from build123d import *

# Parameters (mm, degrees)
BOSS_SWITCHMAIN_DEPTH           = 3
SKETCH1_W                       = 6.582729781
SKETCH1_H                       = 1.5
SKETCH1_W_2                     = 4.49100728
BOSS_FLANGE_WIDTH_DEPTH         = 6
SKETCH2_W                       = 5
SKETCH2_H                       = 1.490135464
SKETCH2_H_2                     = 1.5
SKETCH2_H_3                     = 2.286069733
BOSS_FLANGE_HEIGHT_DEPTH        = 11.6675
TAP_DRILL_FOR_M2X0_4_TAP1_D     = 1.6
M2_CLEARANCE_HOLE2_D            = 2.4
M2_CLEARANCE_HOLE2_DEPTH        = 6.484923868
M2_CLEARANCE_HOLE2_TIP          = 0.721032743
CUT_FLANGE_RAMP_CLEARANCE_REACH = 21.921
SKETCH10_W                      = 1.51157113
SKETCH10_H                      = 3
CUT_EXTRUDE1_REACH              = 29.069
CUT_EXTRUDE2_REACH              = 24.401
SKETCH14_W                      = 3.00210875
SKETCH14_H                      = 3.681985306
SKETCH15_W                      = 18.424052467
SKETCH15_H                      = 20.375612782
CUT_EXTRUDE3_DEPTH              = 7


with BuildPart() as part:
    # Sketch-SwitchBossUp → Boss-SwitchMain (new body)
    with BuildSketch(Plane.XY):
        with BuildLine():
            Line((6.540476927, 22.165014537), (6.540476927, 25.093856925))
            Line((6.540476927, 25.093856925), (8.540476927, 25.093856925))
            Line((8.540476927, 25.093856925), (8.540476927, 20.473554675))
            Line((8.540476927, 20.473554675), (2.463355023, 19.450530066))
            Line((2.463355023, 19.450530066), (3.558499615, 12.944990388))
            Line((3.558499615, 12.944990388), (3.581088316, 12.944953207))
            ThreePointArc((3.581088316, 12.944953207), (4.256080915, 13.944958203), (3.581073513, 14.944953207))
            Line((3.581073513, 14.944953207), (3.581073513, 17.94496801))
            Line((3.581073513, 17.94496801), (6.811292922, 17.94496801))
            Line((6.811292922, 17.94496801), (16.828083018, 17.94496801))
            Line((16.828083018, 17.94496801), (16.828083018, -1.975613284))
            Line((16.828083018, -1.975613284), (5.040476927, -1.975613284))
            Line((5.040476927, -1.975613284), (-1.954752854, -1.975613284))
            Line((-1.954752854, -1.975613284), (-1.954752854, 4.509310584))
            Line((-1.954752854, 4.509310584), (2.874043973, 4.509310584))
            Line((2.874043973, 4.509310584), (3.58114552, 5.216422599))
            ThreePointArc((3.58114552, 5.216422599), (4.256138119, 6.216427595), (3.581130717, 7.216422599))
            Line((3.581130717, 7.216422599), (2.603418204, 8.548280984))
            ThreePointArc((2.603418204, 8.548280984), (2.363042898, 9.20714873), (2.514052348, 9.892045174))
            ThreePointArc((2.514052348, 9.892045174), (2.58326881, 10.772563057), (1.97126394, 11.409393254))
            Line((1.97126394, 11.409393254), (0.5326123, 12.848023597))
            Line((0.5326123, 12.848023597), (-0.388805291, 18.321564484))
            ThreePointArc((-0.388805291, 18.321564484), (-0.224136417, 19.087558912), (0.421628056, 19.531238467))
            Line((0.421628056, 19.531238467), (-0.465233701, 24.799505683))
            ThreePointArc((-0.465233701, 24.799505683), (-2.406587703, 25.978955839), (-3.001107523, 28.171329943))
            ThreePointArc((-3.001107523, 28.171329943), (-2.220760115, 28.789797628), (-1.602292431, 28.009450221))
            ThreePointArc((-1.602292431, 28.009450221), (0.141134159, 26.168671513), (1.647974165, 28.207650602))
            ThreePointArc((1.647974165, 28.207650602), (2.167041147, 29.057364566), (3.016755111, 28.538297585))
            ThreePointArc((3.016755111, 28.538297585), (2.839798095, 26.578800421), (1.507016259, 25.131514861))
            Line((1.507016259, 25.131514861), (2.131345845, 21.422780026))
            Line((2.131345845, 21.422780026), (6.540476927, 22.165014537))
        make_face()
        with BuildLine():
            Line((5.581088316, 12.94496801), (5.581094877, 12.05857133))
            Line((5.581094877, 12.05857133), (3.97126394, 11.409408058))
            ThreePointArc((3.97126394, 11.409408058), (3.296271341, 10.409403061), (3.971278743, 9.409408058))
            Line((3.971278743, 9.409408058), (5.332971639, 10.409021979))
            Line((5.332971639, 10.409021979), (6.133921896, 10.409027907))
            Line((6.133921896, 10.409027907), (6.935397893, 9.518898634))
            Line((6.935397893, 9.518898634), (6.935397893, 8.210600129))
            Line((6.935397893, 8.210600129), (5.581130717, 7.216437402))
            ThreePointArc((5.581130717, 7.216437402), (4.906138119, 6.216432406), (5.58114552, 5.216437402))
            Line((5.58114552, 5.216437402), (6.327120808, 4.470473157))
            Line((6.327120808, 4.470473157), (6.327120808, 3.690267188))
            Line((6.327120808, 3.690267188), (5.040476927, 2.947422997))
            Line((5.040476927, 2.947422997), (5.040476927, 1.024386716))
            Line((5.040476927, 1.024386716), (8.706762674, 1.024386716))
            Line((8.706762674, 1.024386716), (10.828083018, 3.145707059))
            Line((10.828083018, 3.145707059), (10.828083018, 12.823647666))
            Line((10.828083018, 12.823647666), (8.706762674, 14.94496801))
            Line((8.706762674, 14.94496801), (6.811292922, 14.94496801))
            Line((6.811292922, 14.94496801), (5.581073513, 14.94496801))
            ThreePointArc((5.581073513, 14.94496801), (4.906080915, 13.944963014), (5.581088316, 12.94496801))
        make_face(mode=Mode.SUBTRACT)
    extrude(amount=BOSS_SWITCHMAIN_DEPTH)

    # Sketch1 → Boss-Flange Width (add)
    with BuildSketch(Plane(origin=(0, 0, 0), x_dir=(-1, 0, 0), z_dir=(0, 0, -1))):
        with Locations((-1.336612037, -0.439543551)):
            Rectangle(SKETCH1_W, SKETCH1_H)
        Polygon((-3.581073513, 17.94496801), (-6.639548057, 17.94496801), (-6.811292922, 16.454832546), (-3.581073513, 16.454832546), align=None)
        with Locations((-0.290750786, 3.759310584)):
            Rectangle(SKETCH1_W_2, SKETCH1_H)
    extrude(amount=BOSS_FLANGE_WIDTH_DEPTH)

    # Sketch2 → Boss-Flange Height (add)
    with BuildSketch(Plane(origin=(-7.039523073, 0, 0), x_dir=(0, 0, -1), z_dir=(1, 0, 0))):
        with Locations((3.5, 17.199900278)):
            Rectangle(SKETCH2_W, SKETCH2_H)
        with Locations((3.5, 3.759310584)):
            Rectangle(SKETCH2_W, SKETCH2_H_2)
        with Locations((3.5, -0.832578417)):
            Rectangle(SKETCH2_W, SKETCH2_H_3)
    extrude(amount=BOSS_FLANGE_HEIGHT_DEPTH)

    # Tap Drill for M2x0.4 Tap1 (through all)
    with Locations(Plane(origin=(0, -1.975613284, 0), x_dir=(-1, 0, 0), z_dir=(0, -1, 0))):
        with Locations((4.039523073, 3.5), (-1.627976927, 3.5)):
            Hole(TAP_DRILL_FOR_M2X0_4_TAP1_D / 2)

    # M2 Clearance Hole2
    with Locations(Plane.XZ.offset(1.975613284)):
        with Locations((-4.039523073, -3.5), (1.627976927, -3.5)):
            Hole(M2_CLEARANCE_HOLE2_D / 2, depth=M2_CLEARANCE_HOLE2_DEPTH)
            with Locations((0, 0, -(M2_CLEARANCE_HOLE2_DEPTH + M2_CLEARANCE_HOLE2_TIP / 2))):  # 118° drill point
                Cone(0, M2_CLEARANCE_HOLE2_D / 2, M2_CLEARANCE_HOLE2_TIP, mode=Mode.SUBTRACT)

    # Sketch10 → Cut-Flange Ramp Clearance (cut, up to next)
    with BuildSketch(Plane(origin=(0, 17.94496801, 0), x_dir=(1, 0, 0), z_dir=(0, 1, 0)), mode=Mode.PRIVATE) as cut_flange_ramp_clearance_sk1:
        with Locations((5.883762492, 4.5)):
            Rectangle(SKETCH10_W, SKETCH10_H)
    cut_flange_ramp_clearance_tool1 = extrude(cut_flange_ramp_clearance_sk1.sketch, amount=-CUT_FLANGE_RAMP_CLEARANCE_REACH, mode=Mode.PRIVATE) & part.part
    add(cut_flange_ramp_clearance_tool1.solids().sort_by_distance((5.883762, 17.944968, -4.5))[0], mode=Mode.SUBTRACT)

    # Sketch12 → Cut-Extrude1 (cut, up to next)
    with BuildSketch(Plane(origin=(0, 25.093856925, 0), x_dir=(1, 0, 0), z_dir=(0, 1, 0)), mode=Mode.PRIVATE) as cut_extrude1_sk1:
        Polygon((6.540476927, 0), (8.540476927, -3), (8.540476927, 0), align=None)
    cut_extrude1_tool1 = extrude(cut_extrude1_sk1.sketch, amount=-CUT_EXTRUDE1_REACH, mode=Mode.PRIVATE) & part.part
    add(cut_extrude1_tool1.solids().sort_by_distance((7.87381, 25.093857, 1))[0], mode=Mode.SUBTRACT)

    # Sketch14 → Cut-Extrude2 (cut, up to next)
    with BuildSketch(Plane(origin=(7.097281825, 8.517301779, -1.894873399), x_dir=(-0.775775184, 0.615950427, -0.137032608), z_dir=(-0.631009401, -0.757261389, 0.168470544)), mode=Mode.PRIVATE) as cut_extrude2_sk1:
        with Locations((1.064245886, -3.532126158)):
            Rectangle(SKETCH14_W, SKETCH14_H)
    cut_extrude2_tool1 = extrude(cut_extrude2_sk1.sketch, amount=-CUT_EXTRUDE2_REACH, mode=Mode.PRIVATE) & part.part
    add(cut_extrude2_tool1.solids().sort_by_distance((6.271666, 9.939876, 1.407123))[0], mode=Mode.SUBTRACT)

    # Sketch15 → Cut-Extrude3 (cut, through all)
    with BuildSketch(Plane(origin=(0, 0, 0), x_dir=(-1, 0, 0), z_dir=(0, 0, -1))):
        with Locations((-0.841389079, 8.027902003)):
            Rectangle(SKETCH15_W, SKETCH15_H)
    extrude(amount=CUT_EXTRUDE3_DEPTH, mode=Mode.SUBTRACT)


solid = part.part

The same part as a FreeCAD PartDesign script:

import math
import FreeCAD as App
import Part
import Sketcher
from FreeCAD import Vector
Q = App.Units.Quantity


def add_polygon(sketch, points):
    """Adds a closed chain of lines whose ends are joined by coincident constraints."""
    first, n = sketch.GeometryCount, len(points)
    for a, b in zip(points, points[1:] + points[:1]):
        sketch.addGeometry(Part.LineSegment(App.Vector(*a, 0), App.Vector(*b, 0)), False)
    for i in range(n):
        sketch.addConstraint(Sketcher.Constraint("Coincident", first + i, 2, first + (i + 1) % n, 1))

doc = App.newDocument("Part")
body = doc.addObject("PartDesign::Body", "Body")

sketch1 = doc.addObject("Sketcher::SketchObject", "Sketch")
body.addObject(sketch1)
sketch1.AttachmentSupport = (doc.XY_Plane, [""])
sketch1.MapMode = "FlatFace"
sketch1.addGeometry(Part.LineSegment(Vector(6.540477, 25.093857, 0), Vector(6.540477, 22.165015, 0)), False)
sketch1.addGeometry(Part.LineSegment(Vector(6.540477, 22.165015, 0), Vector(2.131346, 21.42278, 0)), False)
sketch1.addGeometry(Part.LineSegment(Vector(2.131346, 21.42278, 0), Vector(1.507016, 25.131515, 0)), False)
sketch1.addGeometry(Part.ArcOfCircle(Part.Circle(Vector(0.040477, 27.819339, 0), Vector(0, 0, 1), 3.061884), math.radians(-61.382088), math.radians(13.580385)), False)
sketch1.addGeometry(Part.ArcOfCircle(Part.Circle(Vector(2.332365, 28.372974, 0), Vector(0, 0, 1), 0.704075), math.radians(13.580385), math.radians(193.580385)), False)
sketch1.addGeometry(Part.ArcOfCircle(Part.Circle(Vector(0.040477, 27.819339, 0), Vector(0, 0, 1), 1.653733), math.radians(173.398735), math.radians(373.580385)), False)
sketch1.addGeometry(Part.ArcOfCircle(Part.Circle(Vector(-2.3017, 28.09039, 0), Vector(0, 0, 1), 0.704075), math.radians(-6.601265), math.radians(173.398735)), False)
sketch1.addGeometry(Part.ArcOfCircle(Part.Circle(Vector(0.040477, 27.819339, 0), Vector(0, 0, 1), 3.061884), math.radians(173.398735), math.radians(260.493284)), False)
sketch1.addGeometry(Part.LineSegment(Vector(-0.465234, 24.799506, 0), Vector(0.421628, 19.531238, 0)), False)
sketch1.addGeometry(Part.ArcOfCircle(Part.Circle(Vector(0.656543, 18.497539, 0), Vector(0, 0, 1), 1.060057), math.radians(102.803384), math.radians(189.555598)), False)
sketch1.addGeometry(Part.LineSegment(Vector(-0.388805, 18.321564, 0), Vector(0.532612, 12.848024, 0)), False)
sketch1.addGeometry(Part.LineSegment(Vector(0.532612, 12.848024, 0), Vector(1.971264, 11.409393, 0)), False)
sketch1.addGeometry(Part.ArcOfCircle(Part.Circle(Vector(1.568031, 10.40939, 0), Vector(0, 0, 1), 1.078241), math.radians(-28.672655), math.radians(68.039124)), False)
sketch1.addGeometry(Part.ArcOfCircle(Part.Circle(Vector(3.614295, 9.290362, 0), Vector(0, 0, 1), 1.254016), math.radians(151.327345), math.radians(216.28226)), False)
sketch1.addGeometry(Part.LineSegment(Vector(2.603418, 8.548281, 0), Vector(3.581131, 7.216423, 0)), False)
sketch1.addGeometry(Part.ArcOfCircle(Part.Circle(Vector(3.177897, 6.21642, 0), Vector(0, 0, 1), 1.078241), math.radians(-68.038276), math.radians(68.039124)), False)
sketch1.addGeometry(Part.LineSegment(Vector(3.581146, 5.216423, 0), Vector(2.874044, 4.509311, 0)), False)
sketch1.addGeometry(Part.LineSegment(Vector(2.874044, 4.509311, 0), Vector(-1.954753, 4.509311, 0)), False)
sketch1.addGeometry(Part.LineSegment(Vector(-1.954753, 4.509311, 0), Vector(-1.954753, -1.975613, 0)), False)
sketch1.addGeometry(Part.LineSegment(Vector(-1.954753, -1.975613, 0), Vector(16.828083, -1.975613, 0)), False)
sketch1.addGeometry(Part.LineSegment(Vector(16.828083, -1.975613, 0), Vector(16.828083, 17.944968, 0)), False)
sketch1.addGeometry(Part.LineSegment(Vector(16.828083, 17.944968, 0), Vector(3.581074, 17.944968, 0)), False)
sketch1.addGeometry(Part.LineSegment(Vector(3.581074, 17.944968, 0), Vector(3.581074, 14.944953, 0)), False)
sketch1.addGeometry(Part.ArcOfCircle(Part.Circle(Vector(3.17784, 13.94495, 0), Vector(0, 0, 1), 1.078241), math.radians(-68.038276), math.radians(68.039124)), False)
sketch1.addGeometry(Part.LineSegment(Vector(3.581088, 12.944953, 0), Vector(3.5585, 12.94499, 0)), False)
sketch1.addGeometry(Part.LineSegment(Vector(3.5585, 12.94499, 0), Vector(2.463355, 19.45053, 0)), False)
sketch1.addGeometry(Part.LineSegment(Vector(2.463355, 19.45053, 0), Vector(8.540477, 20.473555, 0)), False)
sketch1.addGeometry(Part.LineSegment(Vector(8.540477, 20.473555, 0), Vector(8.540477, 25.093857, 0)), False)
sketch1.addGeometry(Part.LineSegment(Vector(8.540477, 25.093857, 0), Vector(6.540477, 25.093857, 0)), False)
sketch1.addGeometry(Part.ArcOfCircle(Part.Circle(Vector(5.984322, 13.944971, 0), Vector(0, 0, 1), 1.078241), math.radians(111.961724), math.radians(248.039124)), False)
sketch1.addGeometry(Part.LineSegment(Vector(5.581074, 14.944968, 0), Vector(8.706763, 14.944968, 0)), False)
sketch1.addGeometry(Part.LineSegment(Vector(8.706763, 14.944968, 0), Vector(10.828083, 12.823648, 0)), False)
sketch1.addGeometry(Part.LineSegment(Vector(10.828083, 12.823648, 0), Vector(10.828083, 3.145707, 0)), False)
sketch1.addGeometry(Part.LineSegment(Vector(10.828083, 3.145707, 0), Vector(8.706763, 1.024387, 0)), False)
sketch1.addGeometry(Part.LineSegment(Vector(8.706763, 1.024387, 0), Vector(5.040477, 1.024387, 0)), False)
sketch1.addGeometry(Part.LineSegment(Vector(5.040477, 1.024387, 0), Vector(5.040477, 2.947423, 0)), False)
sketch1.addGeometry(Part.LineSegment(Vector(5.040477, 2.947423, 0), Vector(6.327121, 3.690267, 0)), False)
sketch1.addGeometry(Part.LineSegment(Vector(6.327121, 3.690267, 0), Vector(6.327121, 4.470473, 0)), False)
sketch1.addGeometry(Part.LineSegment(Vector(6.327121, 4.470473, 0), Vector(5.581146, 5.216437, 0)), False)
sketch1.addGeometry(Part.ArcOfCircle(Part.Circle(Vector(5.984379, 6.21644, 0), Vector(0, 0, 1), 1.078241), math.radians(111.961724), math.radians(248.039124)), False)
sketch1.addGeometry(Part.LineSegment(Vector(5.581131, 7.216437, 0), Vector(6.935398, 8.2106, 0)), False)
sketch1.addGeometry(Part.LineSegment(Vector(6.935398, 8.2106, 0), Vector(6.935398, 9.518899, 0)), False)
sketch1.addGeometry(Part.LineSegment(Vector(6.935398, 9.518899, 0), Vector(6.133922, 10.409028, 0)), False)
sketch1.addGeometry(Part.LineSegment(Vector(6.133922, 10.409028, 0), Vector(5.332972, 10.409022, 0)), False)
sketch1.addGeometry(Part.LineSegment(Vector(5.332972, 10.409022, 0), Vector(3.971279, 9.409408, 0)), False)
sketch1.addGeometry(Part.ArcOfCircle(Part.Circle(Vector(4.374512, 10.409411, 0), Vector(0, 0, 1), 1.078241), math.radians(111.961724), math.radians(248.039124)), False)
sketch1.addGeometry(Part.LineSegment(Vector(3.971264, 11.409408, 0), Vector(5.581095, 12.058571, 0)), False)
sketch1.addGeometry(Part.LineSegment(Vector(5.581095, 12.058571, 0), Vector(5.581088, 12.944968, 0)), False)
sketch1.addConstraint(Sketcher.Constraint("Coincident", 0, 2, 1, 1))
sketch1.addConstraint(Sketcher.Constraint("Coincident", 1, 2, 2, 1))
sketch1.addConstraint(Sketcher.Constraint("Coincident", 2, 2, 3, 1))
sketch1.addConstraint(Sketcher.Constraint("Tangent", 3, 2, 4, 1))
sketch1.addConstraint(Sketcher.Constraint("Tangent", 4, 2, 5, 2))
sketch1.addConstraint(Sketcher.Constraint("Tangent", 5, 1, 6, 1))
sketch1.addConstraint(Sketcher.Constraint("Tangent", 6, 2, 7, 1))
sketch1.addConstraint(Sketcher.Constraint("Coincident", 7, 2, 8, 1))
sketch1.addConstraint(Sketcher.Constraint("Coincident", 8, 2, 9, 1))
sketch1.addConstraint(Sketcher.Constraint("Tangent", 9, 2, 10, 1))
sketch1.addConstraint(Sketcher.Constraint("Coincident", 10, 2, 11, 1))
sketch1.addConstraint(Sketcher.Constraint("Coincident", 11, 2, 12, 2))
sketch1.addConstraint(Sketcher.Constraint("Tangent", 12, 1, 13, 1))
sketch1.addConstraint(Sketcher.Constraint("Tangent", 13, 2, 14, 1))
sketch1.addConstraint(Sketcher.Constraint("Coincident", 14, 2, 15, 2))
sketch1.addConstraint(Sketcher.Constraint("Coincident", 15, 1, 16, 1))
sketch1.addConstraint(Sketcher.Constraint("Coincident", 16, 2, 17, 1))
sketch1.addConstraint(Sketcher.Constraint("Coincident", 17, 2, 18, 1))
sketch1.addConstraint(Sketcher.Constraint("Coincident", 18, 2, 19, 1))
sketch1.addConstraint(Sketcher.Constraint("Coincident", 19, 2, 20, 1))
sketch1.addConstraint(Sketcher.Constraint("Coincident", 20, 2, 21, 1))
sketch1.addConstraint(Sketcher.Constraint("Coincident", 21, 2, 22, 1))
sketch1.addConstraint(Sketcher.Constraint("Coincident", 22, 2, 23, 2))
sketch1.addConstraint(Sketcher.Constraint("Coincident", 23, 1, 24, 1))
sketch1.addConstraint(Sketcher.Constraint("Coincident", 24, 2, 25, 1))
sketch1.addConstraint(Sketcher.Constraint("Coincident", 25, 2, 26, 1))
sketch1.addConstraint(Sketcher.Constraint("Coincident", 26, 2, 27, 1))
sketch1.addConstraint(Sketcher.Constraint("Coincident", 27, 2, 28, 1))
sketch1.addConstraint(Sketcher.Constraint("Coincident", 28, 2, 0, 1))
sketch1.addConstraint(Sketcher.Constraint("Coincident", 29, 1, 30, 1))
sketch1.addConstraint(Sketcher.Constraint("Coincident", 30, 2, 31, 1))
sketch1.addConstraint(Sketcher.Constraint("Coincident", 31, 2, 32, 1))
sketch1.addConstraint(Sketcher.Constraint("Coincident", 32, 2, 33, 1))
sketch1.addConstraint(Sketcher.Constraint("Coincident", 33, 2, 34, 1))
sketch1.addConstraint(Sketcher.Constraint("Coincident", 34, 2, 35, 1))
sketch1.addConstraint(Sketcher.Constraint("Coincident", 35, 2, 36, 1))
sketch1.addConstraint(Sketcher.Constraint("Coincident", 36, 2, 37, 1))
sketch1.addConstraint(Sketcher.Constraint("Coincident", 37, 2, 38, 1))
sketch1.addConstraint(Sketcher.Constraint("Coincident", 38, 2, 39, 2))
sketch1.addConstraint(Sketcher.Constraint("Coincident", 39, 1, 40, 1))
sketch1.addConstraint(Sketcher.Constraint("Coincident", 40, 2, 41, 1))
sketch1.addConstraint(Sketcher.Constraint("Coincident", 41, 2, 42, 1))
sketch1.addConstraint(Sketcher.Constraint("Coincident", 42, 2, 43, 1))
sketch1.addConstraint(Sketcher.Constraint("Coincident", 43, 2, 44, 1))
sketch1.addConstraint(Sketcher.Constraint("Coincident", 44, 2, 45, 2))
sketch1.addConstraint(Sketcher.Constraint("Tangent", 45, 1, 46, 1))
sketch1.addConstraint(Sketcher.Constraint("Coincident", 46, 2, 47, 1))
sketch1.addConstraint(Sketcher.Constraint("Coincident", 47, 2, 29, 2))
sketch1.addConstraint(Sketcher.Constraint("Vertical", 0))
sketch1.addConstraint(Sketcher.Constraint("Horizontal", 17))
sketch1.addConstraint(Sketcher.Constraint("Vertical", 18))
sketch1.addConstraint(Sketcher.Constraint("Horizontal", 19))
sketch1.addConstraint(Sketcher.Constraint("Vertical", 20))
sketch1.addConstraint(Sketcher.Constraint("Horizontal", 21))
sketch1.addConstraint(Sketcher.Constraint("Vertical", 22))
sketch1.addConstraint(Sketcher.Constraint("Vertical", 27))
sketch1.addConstraint(Sketcher.Constraint("Horizontal", 28))
sketch1.addConstraint(Sketcher.Constraint("Horizontal", 30))
sketch1.addConstraint(Sketcher.Constraint("Vertical", 32))
sketch1.addConstraint(Sketcher.Constraint("Horizontal", 34))
sketch1.addConstraint(Sketcher.Constraint("Vertical", 35))
sketch1.addConstraint(Sketcher.Constraint("Vertical", 37))
sketch1.addConstraint(Sketcher.Constraint("Vertical", 41))
sketch1.addConstraint(Sketcher.Constraint("Coincident", 5, 3, 3, 3))
sketch1.addConstraint(Sketcher.Constraint("Coincident", 7, 3, 3, 3))
sketch1.addConstraint(Sketcher.Constraint("Equal", 4, 6))
sketch1.addConstraint(Sketcher.Constraint("Equal", 12, 15))
sketch1.addConstraint(Sketcher.Constraint("Equal", 15, 23))
sketch1.addConstraint(Sketcher.Constraint("Equal", 23, 29))
sketch1.addConstraint(Sketcher.Constraint("Equal", 29, 39))
sketch1.addConstraint(Sketcher.Constraint("Equal", 39, 45))
sketch1.addConstraint(Sketcher.Constraint("Perpendicular", 1, 2))
sketch1.addConstraint(Sketcher.Constraint("Parallel", 2, 8))
sketch1.addConstraint(Sketcher.Constraint("Parallel", 8, 10))
sketch1.addConstraint(Sketcher.Constraint("Perpendicular", 11, 16))
sketch1.addConstraint(Sketcher.Constraint("Parallel", 10, 25))
sketch1.addConstraint(Sketcher.Constraint("Perpendicular", 25, 26))
sketch1.addConstraint(Sketcher.Constraint("Perpendicular", 31, 33))
sketch1.addConstraint(Sketcher.Constraint("Perpendicular", 16, 38))
sketch1.addConstraint(Sketcher.Constraint("Perpendicular", 14, 40))
sketch1.addConstraint(Sketcher.Constraint("Parallel", 40, 44))
sketch1.addConstraint(Sketcher.Constraint("Perpendicular", 43, 47))
sketch1.addConstraint(Sketcher.Constraint("Vertical", 30, 2, 33, 2))
sketch1.addConstraint(Sketcher.Constraint("Equal", 31, 33))
sketch1.addConstraint(Sketcher.Constraint("DistanceX", 28, 2, 28, 1, 2.0))
sketch1.addConstraint(Sketcher.Constraint("Angle", 36, Q("30 deg")))
sketch1.addConstraint(Sketcher.Constraint("Angle", 42, Q("132 deg")))
sketch1.addConstraint(Sketcher.Constraint("Distance", 16, 1.0))
sketch1.addConstraint(Sketcher.Constraint("Distance", 31, 3.0))
sketch1.addConstraint(Sketcher.Constraint("Distance", 40, 1.68))
sketch1.addConstraint(Sketcher.Constraint("Radius", 12, 1.078241))
sketch1.addConstraint(Sketcher.Constraint("DistanceY", 41, 1, 41, 2, 1.308299))
sketch1.addConstraint(Sketcher.Constraint("Radius", 3, 3.061884))
sketch1.addConstraint(Sketcher.Constraint("Radius", 4, 0.704075))
sketch1.addConstraint(Sketcher.Constraint("Radius", 9, 1.060057))
sketch1.addConstraint(Sketcher.Constraint("Radius", 13, 1.254016))
sketch1.addConstraint(Sketcher.Constraint("Distance", 14, 1.652201))
sketch1.addConstraint(Sketcher.Constraint("DistanceX", 21, 2, 21, 1, 13.24701))
sketch1.addConstraint(Sketcher.Constraint("DistanceX", 30, 1, 30, 2, 3.125689))
sketch1.addConstraint(Sketcher.Constraint("DistanceY", 20, 1, 20, 2, 19.920581))
sketch1.addConstraint(Sketcher.Constraint("DistanceY", 32, 2, 32, 1, 9.677941))
sketch1.addConstraint(Sketcher.Constraint("DistanceX", 6, 3, -1, 1, 2.3017))
sketch1.addConstraint(Sketcher.Constraint("DistanceX", -1, 1, 24, 2, 3.5585))
sketch1.addConstraint(Sketcher.Constraint("DistanceY", -1, 1, 40, 2, 8.2106))
sketch1.addConstraint(Sketcher.Constraint("Distance", 1, 4.471169))
sketch1.addConstraint(Sketcher.Constraint("Distance", 24, 0.022589))
sketch1.addConstraint(Sketcher.Constraint("Distance", 26, 6.162628))
sketch1.addConstraint(Sketcher.Constraint("Distance", 36, 1.485688))
sketch1.addConstraint(Sketcher.Constraint("Distance", 38, 1.054961))
sketch1.addConstraint(Sketcher.Constraint("Distance", 43, 0.80095))
sketch1.addConstraint(Sketcher.Constraint("Distance", 44, 1.689212))
sketch1.addConstraint(Sketcher.Constraint("Distance", 46, 1.73579))
sketch1.addConstraint(Sketcher.Constraint("DistanceX", 17, 2, 17, 1, 4.828797))
sketch1.addConstraint(Sketcher.Constraint("DistanceX", 19, 1, 19, 2, 18.782836))
sketch1.addConstraint(Sketcher.Constraint("DistanceX", 34, 2, 34, 1, 3.666286))
sketch1.addConstraint(Sketcher.Constraint("DistanceY", 0, 2, 0, 1, 2.928842))
sketch1.addConstraint(Sketcher.Constraint("DistanceY", 18, 2, 18, 1, 6.484924))
sketch1.addConstraint(Sketcher.Constraint("DistanceY", 22, 2, 22, 1, 3.000015))
sketch1.addConstraint(Sketcher.Constraint("DistanceY", 27, 1, 27, 2, 4.620302))
sketch1.addConstraint(Sketcher.Constraint("DistanceY", 35, 1, 35, 2, 1.923036))
sketch1.addConstraint(Sketcher.Constraint("DistanceY", 37, 1, 37, 2, 0.780206))
sketch1.addConstraint(Sketcher.Constraint("DistanceY", -1, 1, 3, 3, 27.819339))
sketch1.addConstraint(Sketcher.Constraint("DistanceY", -1, 1, 6, 3, 28.09039))
sketch1.addConstraint(Sketcher.Constraint("DistanceY", -1, 1, 9, 3, 18.497539))
sketch1.addConstraint(Sketcher.Constraint("DistanceX", -1, 1, 12, 3, 1.568031))
sketch1.addConstraint(Sketcher.Constraint("DistanceY", -1, 1, 12, 3, 10.40939))
sketch1.addConstraint(Sketcher.Constraint("DistanceY", -1, 1, 15, 3, 6.21642))
sketch1.addConstraint(Sketcher.Constraint("DistanceX", -1, 1, 23, 3, 3.17784))
sketch1.addConstraint(Sketcher.Constraint("DistanceY", -1, 1, 23, 3, 13.94495))
sketch1.addConstraint(Sketcher.Constraint("DistanceX", -1, 1, 29, 3, 5.984322))
sketch1.addConstraint(Sketcher.Constraint("DistanceY", -1, 1, 29, 3, 13.944971))
sketch1.addConstraint(Sketcher.Constraint("DistanceX", -1, 1, 39, 3, 5.984379))
sketch1.addConstraint(Sketcher.Constraint("DistanceY", -1, 1, 39, 3, 6.21644))
sketch1.addConstraint(Sketcher.Constraint("DistanceY", -1, 1, 45, 3, 10.409411))
sketch1.addConstraint(Sketcher.Constraint("DistanceY", -1, 1, 1, 2, 21.42278))
sketch1.addConstraint(Sketcher.Constraint("DistanceY", -1, 1, 4, 2, 28.207651))
sketch1.addConstraint(Sketcher.Constraint("DistanceX", -1, 1, 8, 2, 0.421628))
sketch1.addConstraint(Sketcher.Constraint("DistanceY", -1, 1, 8, 2, 19.531238))
sketch1.addConstraint(Sketcher.Constraint("DistanceX", -1, 1, 13, 2, 2.603418))
sketch1.addConstraint(Sketcher.Constraint("DistanceY", -1, 1, 13, 2, 8.548281))
sketch1.addConstraint(Sketcher.Constraint("DistanceY", -1, 1, 16, 2, 4.509311))
sketch1.addConstraint(Sketcher.Constraint("DistanceY", -1, 1, 24, 2, 12.94499))
sketch1.addConstraint(Sketcher.Constraint("DistanceY", -1, 1, 25, 2, 19.45053))
sketch1.addConstraint(Sketcher.Constraint("DistanceX", -1, 1, 42, 2, 6.133922))
sketch1.addConstraint(Sketcher.Constraint("DistanceY", -1, 1, 43, 2, 10.409022))
sketch1.addConstraint(Sketcher.Constraint("DistanceY", -1, 1, 45, 1, 11.409408))
sketch1.addConstraint(Sketcher.Constraint("Distance", 10, 5.550555))
pad1 = doc.addObject("PartDesign::Pad", "Pad")
body.addObject(pad1)
pad1.Profile = sketch1
pad1.Length = 3

sketch2 = doc.addObject("Sketcher::SketchObject", "Sketch001")
body.addObject(sketch2)
sketch2.AttachmentSupport = (doc.XY_Plane, [""])
sketch2.MapMode = "FlatFace"
add_polygon(sketch2, [(4.627977, 0.310456), (4.627977, -1.189544), (-1.954753, -1.189544), (-1.954753, 0.310456)])
add_polygon(sketch2, [(3.581074, 17.944968), (6.639548, 17.944968), (6.811293, 16.454833), (3.581074, 16.454833)])
add_polygon(sketch2, [(2.536254, 4.509311), (2.536254, 3.009311), (-1.954753, 3.009311), (-1.954753, 4.509311)])
sketch2.addConstraint(Sketcher.Constraint("Vertical", 0))
sketch2.addConstraint(Sketcher.Constraint("Horizontal", 1))
sketch2.addConstraint(Sketcher.Constraint("Vertical", 2))
sketch2.addConstraint(Sketcher.Constraint("Horizontal", 3))
sketch2.addConstraint(Sketcher.Constraint("Horizontal", 4))
sketch2.addConstraint(Sketcher.Constraint("Horizontal", 6))
sketch2.addConstraint(Sketcher.Constraint("Vertical", 7))
sketch2.addConstraint(Sketcher.Constraint("Vertical", 8))
sketch2.addConstraint(Sketcher.Constraint("Horizontal", 9))
sketch2.addConstraint(Sketcher.Constraint("Vertical", 10))
sketch2.addConstraint(Sketcher.Constraint("Horizontal", 11))
sketch2.addConstraint(Sketcher.Constraint("Vertical", 2, 2, 9, 2))
sketch2.addConstraint(Sketcher.Constraint("Equal", 2, 8))
sketch2.addConstraint(Sketcher.Constraint("DistanceY", 0, 2, 0, 1, 1.5))
sketch2.addConstraint(Sketcher.Constraint("Distance", 5, 1.5))
sketch2.addConstraint(Sketcher.Constraint("DistanceX", 1, 2, 1, 1, 6.58273))
sketch2.addConstraint(Sketcher.Constraint("DistanceX", 6, 2, 6, 1, 3.230219))
sketch2.addConstraint(Sketcher.Constraint("DistanceX", 2, 2, 4, 2, 8.594301))
sketch2.addConstraint(Sketcher.Constraint("DistanceX", 4, 1, 4, 2, 3.058475))
sketch2.addConstraint(Sketcher.Constraint("DistanceX", 9, 2, 9, 1, 4.491007))
sketch2.addConstraint(Sketcher.Constraint("DistanceX", -1, 1, 4, 2, 6.639548))
sketch2.addConstraint(Sketcher.Constraint("DistanceY", -1, 1, 4, 2, 17.944968))
sketch2.addConstraint(Sketcher.Constraint("DistanceY", -1, 1, 8, 2, 3.009311))
sketch2.addConstraint(Sketcher.Constraint("DistanceY", 3, 2, 4, 2, 17.634512))
pad2 = doc.addObject("PartDesign::Pad", "Pad001")
body.addObject(pad2)
pad2.Profile = sketch2
pad2.Length = 6
pad2.Reversed = True

sketch3 = doc.addObject("Sketcher::SketchObject", "Sketch002")
body.addObject(sketch3)
sketch3.AttachmentSupport = (doc.YZ_Plane, [""])
sketch3.MapMode = "FlatFace"
sketch3.AttachmentOffset = App.Placement(Vector(0, 0, -7.039523), App.Rotation())
add_polygon(sketch3, [(17.944968, -1), (16.454833, -1), (16.454833, -6), (17.944968, -6)])
add_polygon(sketch3, [(4.509311, -1), (3.009311, -1), (3.009311, -6), (4.509311, -6)])
add_polygon(sketch3, [(0.310456, -1), (-1.975613, -1), (-1.975613, -6), (0.310456, -6)])
sketch3.addConstraint(Sketcher.Constraint("Horizontal", 0))
sketch3.addConstraint(Sketcher.Constraint("Vertical", 1))
sketch3.addConstraint(Sketcher.Constraint("Horizontal", 2))
sketch3.addConstraint(Sketcher.Constraint("Vertical", 3))
sketch3.addConstraint(Sketcher.Constraint("Horizontal", 4))
sketch3.addConstraint(Sketcher.Constraint("Vertical", 5))
sketch3.addConstraint(Sketcher.Constraint("Horizontal", 6))
sketch3.addConstraint(Sketcher.Constraint("Vertical", 7))
sketch3.addConstraint(Sketcher.Constraint("Horizontal", 8))
sketch3.addConstraint(Sketcher.Constraint("Vertical", 9))
sketch3.addConstraint(Sketcher.Constraint("Horizontal", 10))
sketch3.addConstraint(Sketcher.Constraint("Vertical", 11))
sketch3.addConstraint(Sketcher.Constraint("Horizontal", 3, 2, 4, 2))
sketch3.addConstraint(Sketcher.Constraint("Horizontal", 2, 2, 5, 2))
sketch3.addConstraint(Sketcher.Constraint("Horizontal", 7, 2, 8, 2))
sketch3.addConstraint(Sketcher.Constraint("Horizontal", 6, 2, 9, 2))
sketch3.addConstraint(Sketcher.Constraint("DistanceY", 1, 2, 1, 1, 5.0))
sketch3.addConstraint(Sketcher.Constraint("DistanceX", 4, 2, 4, 1, 1.5))
sketch3.addConstraint(Sketcher.Constraint("DistanceY", 0, 2, -1, 1, 1.0))
sketch3.addConstraint(Sketcher.Constraint("DistanceX", 8, 2, 8, 1, 2.28607))
sketch3.addConstraint(Sketcher.Constraint("DistanceX", 0, 2, 0, 1, 1.490135))
sketch3.addConstraint(Sketcher.Constraint("DistanceX", -1, 1, 2, 2, 17.944968))
sketch3.addConstraint(Sketcher.Constraint("DistanceX", -1, 1, 4, 2, 3.009311))
sketch3.addConstraint(Sketcher.Constraint("DistanceX", 8, 2, -1, 1, 1.975613))
pad3 = doc.addObject("PartDesign::Pad", "Pad002")
body.addObject(pad3)
pad3.Profile = sketch3
pad3.Length = 11.6675

sketch4 = doc.addObject("Sketcher::SketchObject", "Sketch003")
body.addObject(sketch4)
sketch4.AttachmentSupport = (doc.XZ_Plane, [""])
sketch4.MapMode = "FlatFace"
sketch4.AttachmentOffset = App.Placement(Vector(0, 0, 1.975613), App.Rotation())
sketch4.addGeometry(Part.Circle(Vector(-4.039523, -3.5, 0), Vector(0, 0, 1), 0.8), False)
sketch4.addGeometry(Part.Circle(Vector(1.627977, -3.5, 0), Vector(0, 0, 1), 0.8), False)
sketch4.addConstraint(Sketcher.Constraint("Equal", 0, 1))
sketch4.addConstraint(Sketcher.Constraint("Horizontal", 0, 3, 1, 3))
sketch4.addConstraint(Sketcher.Constraint("Diameter", 0, 1.6))
sketch4.addConstraint(Sketcher.Constraint("DistanceY", 0, 3, -1, 1, 3.5))
sketch4.addConstraint(Sketcher.Constraint("DistanceX", 0, 3, 1, 3, 5.6675))
sketch4.addConstraint(Sketcher.Constraint("DistanceX", 0, 3, -1, 1, 4.039523))
doc.recompute()
hole = doc.addObject("PartDesign::Hole", "Hole")
body.addObject(hole)
hole.Profile = sketch4
hole.ThreadType = "None"
hole.Diameter = 1.6
hole.DepthType = "ThroughAll"

sketch5 = doc.addObject("Sketcher::SketchObject", "Sketch004")
body.addObject(sketch5)
sketch5.AttachmentSupport = (doc.XZ_Plane, [""])
sketch5.MapMode = "FlatFace"
sketch5.AttachmentOffset = App.Placement(Vector(0, 0, 1.975613), App.Rotation())
sketch5.addGeometry(Part.Circle(Vector(-4.039523, -3.5, 0), Vector(0, 0, 1), 1.2), False)
sketch5.addGeometry(Part.Circle(Vector(1.627977, -3.5, 0), Vector(0, 0, 1), 1.2), False)
sketch5.addConstraint(Sketcher.Constraint("Equal", 0, 1))
sketch5.addConstraint(Sketcher.Constraint("Horizontal", 0, 3, 1, 3))
sketch5.addConstraint(Sketcher.Constraint("Diameter", 0, 2.4))
sketch5.addConstraint(Sketcher.Constraint("DistanceY", 0, 3, -1, 1, 3.5))
sketch5.addConstraint(Sketcher.Constraint("DistanceX", 0, 3, 1, 3, 5.6675))
sketch5.addConstraint(Sketcher.Constraint("DistanceX", 0, 3, -1, 1, 4.039523))
doc.recompute()
hole2 = doc.addObject("PartDesign::Hole", "Hole001")
body.addObject(hole2)
hole2.Profile = sketch5
hole2.ThreadType = "None"
hole2.Diameter = 2.4
hole2.DepthType = "Dimension"
hole2.Depth = 6.484924
hole2.DrillPoint = "Angled"
hole2.DrillPointAngle = 118

sketch6 = doc.addObject("Sketcher::SketchObject", "Sketch005")
body.addObject(sketch6)
sketch6.AttachmentSupport = (doc.XZ_Plane, [""])
sketch6.MapMode = "FlatFace"
sketch6.AttachmentOffset = App.Placement(Vector(0, 0, -17.944968), App.Rotation())
add_polygon(sketch6, [(5.127977, -6), (5.127977, -3), (6.639548, -3), (6.639548, -6)])
sketch6.addConstraint(Sketcher.Constraint("Vertical", 0))
sketch6.addConstraint(Sketcher.Constraint("Horizontal", 1))
sketch6.addConstraint(Sketcher.Constraint("Vertical", 2))
sketch6.addConstraint(Sketcher.Constraint("Horizontal", 3))
sketch6.addConstraint(Sketcher.Constraint("DistanceY", 0, 1, 0, 2, 3.0))
sketch6.addConstraint(Sketcher.Constraint("DistanceY", 0, 2, -1, 1, 3.0))
sketch6.addConstraint(Sketcher.Constraint("DistanceX", 1, 1, 1, 2, 1.511571))
sketch6.addConstraint(Sketcher.Constraint("DistanceX", -1, 1, 1, 2, 6.639548))
pocket1 = doc.addObject("PartDesign::Pocket", "Pocket")
body.addObject(pocket1)
pocket1.Profile = sketch6
pocket1.Type = "UpToFirst"
pocket1.Reversed = True

sketch7 = doc.addObject("Sketcher::SketchObject", "Sketch006")
body.addObject(sketch7)
sketch7.AttachmentSupport = (doc.XZ_Plane, [""])
sketch7.MapMode = "FlatFace"
sketch7.AttachmentOffset = App.Placement(Vector(0, 0, -25.093857), App.Rotation())
add_polygon(sketch7, [(6.540477, 0), (8.540477, 3), (8.540477, 0)])
sketch7.addConstraint(Sketcher.Constraint("Vertical", 1))
sketch7.addConstraint(Sketcher.Constraint("Horizontal", 2))
sketch7.addConstraint(Sketcher.Constraint("PointOnObject", 1, 2, -1))
sketch7.addConstraint(Sketcher.Constraint("DistanceX", 2, 2, 2, 1, 2.0))
sketch7.addConstraint(Sketcher.Constraint("DistanceY", 1, 2, 1, 1, 3.0))
sketch7.addConstraint(Sketcher.Constraint("DistanceX", -1, 1, 0, 2, 8.540477))
pocket2 = doc.addObject("PartDesign::Pocket", "Pocket001")
body.addObject(pocket2)
pocket2.Profile = sketch7
pocket2.Type = "UpToFirst"
pocket2.Reversed = True

sketch8 = doc.addObject("Sketcher::SketchObject", "Sketch007")
body.addObject(sketch8)
sketch8.Placement = App.Placement(Vector(7.097282, 8.517302, -1.894873), App.Rotation(Vector(-0.775775184, 0.615950427, -0.137032608), Vector(0, -0.217164131, -0.976135103), Vector(-0.631009401, -0.757261389, 0.168470544), "ZXY"))
add_polygon(sketch8, [(-0.436808, -1.691134), (-0.436808, -5.373119), (2.5653, -5.373119), (2.5653, -1.691134)])
sketch8.addConstraint(Sketcher.Constraint("Vertical", 0))
sketch8.addConstraint(Sketcher.Constraint("Horizontal", 1))
sketch8.addConstraint(Sketcher.Constraint("Vertical", 2))
sketch8.addConstraint(Sketcher.Constraint("Horizontal", 3))
sketch8.addConstraint(Sketcher.Constraint("DistanceX", 1, 1, 1, 2, 3.002109))
sketch8.addConstraint(Sketcher.Constraint("DistanceX", -1, 1, 1, 2, 2.5653))
sketch8.addConstraint(Sketcher.Constraint("DistanceY", 0, 2, 0, 1, 3.681985))
sketch8.addConstraint(Sketcher.Constraint("DistanceY", 0, 2, -1, 1, 5.373119))
pocket3 = doc.addObject("PartDesign::Pocket", "Pocket002")
body.addObject(pocket3)
pocket3.Profile = sketch8
pocket3.Length = 0.505412

sketch9 = doc.addObject("Sketcher::SketchObject", "Sketch008")
body.addObject(sketch9)
sketch9.AttachmentSupport = (doc.XY_Plane, [""])
sketch9.MapMode = "FlatFace"
add_polygon(sketch9, [(10.053415, 18.215708), (10.053415, -2.159904), (-8.370637, -2.159904), (-8.370637, 18.215708)])
sketch9.addConstraint(Sketcher.Constraint("Vertical", 0))
sketch9.addConstraint(Sketcher.Constraint("Horizontal", 1))
sketch9.addConstraint(Sketcher.Constraint("Vertical", 2))
sketch9.addConstraint(Sketcher.Constraint("Horizontal", 3))
sketch9.addConstraint(Sketcher.Constraint("DistanceX", 1, 2, 1, 1, 18.424052))
sketch9.addConstraint(Sketcher.Constraint("DistanceY", 0, 2, 0, 1, 20.375613))
sketch9.addConstraint(Sketcher.Constraint("DistanceY", -1, 1, 2, 2, 18.215708))
sketch9.addConstraint(Sketcher.Constraint("DistanceX", -1, 1, 0, 2, 10.053415))
pocket4 = doc.addObject("PartDesign::Pocket", "Pocket003")
body.addObject(pocket4)
pocket4.Profile = sketch9
pocket4.Type = "ThroughAll"

doc.recompute()
